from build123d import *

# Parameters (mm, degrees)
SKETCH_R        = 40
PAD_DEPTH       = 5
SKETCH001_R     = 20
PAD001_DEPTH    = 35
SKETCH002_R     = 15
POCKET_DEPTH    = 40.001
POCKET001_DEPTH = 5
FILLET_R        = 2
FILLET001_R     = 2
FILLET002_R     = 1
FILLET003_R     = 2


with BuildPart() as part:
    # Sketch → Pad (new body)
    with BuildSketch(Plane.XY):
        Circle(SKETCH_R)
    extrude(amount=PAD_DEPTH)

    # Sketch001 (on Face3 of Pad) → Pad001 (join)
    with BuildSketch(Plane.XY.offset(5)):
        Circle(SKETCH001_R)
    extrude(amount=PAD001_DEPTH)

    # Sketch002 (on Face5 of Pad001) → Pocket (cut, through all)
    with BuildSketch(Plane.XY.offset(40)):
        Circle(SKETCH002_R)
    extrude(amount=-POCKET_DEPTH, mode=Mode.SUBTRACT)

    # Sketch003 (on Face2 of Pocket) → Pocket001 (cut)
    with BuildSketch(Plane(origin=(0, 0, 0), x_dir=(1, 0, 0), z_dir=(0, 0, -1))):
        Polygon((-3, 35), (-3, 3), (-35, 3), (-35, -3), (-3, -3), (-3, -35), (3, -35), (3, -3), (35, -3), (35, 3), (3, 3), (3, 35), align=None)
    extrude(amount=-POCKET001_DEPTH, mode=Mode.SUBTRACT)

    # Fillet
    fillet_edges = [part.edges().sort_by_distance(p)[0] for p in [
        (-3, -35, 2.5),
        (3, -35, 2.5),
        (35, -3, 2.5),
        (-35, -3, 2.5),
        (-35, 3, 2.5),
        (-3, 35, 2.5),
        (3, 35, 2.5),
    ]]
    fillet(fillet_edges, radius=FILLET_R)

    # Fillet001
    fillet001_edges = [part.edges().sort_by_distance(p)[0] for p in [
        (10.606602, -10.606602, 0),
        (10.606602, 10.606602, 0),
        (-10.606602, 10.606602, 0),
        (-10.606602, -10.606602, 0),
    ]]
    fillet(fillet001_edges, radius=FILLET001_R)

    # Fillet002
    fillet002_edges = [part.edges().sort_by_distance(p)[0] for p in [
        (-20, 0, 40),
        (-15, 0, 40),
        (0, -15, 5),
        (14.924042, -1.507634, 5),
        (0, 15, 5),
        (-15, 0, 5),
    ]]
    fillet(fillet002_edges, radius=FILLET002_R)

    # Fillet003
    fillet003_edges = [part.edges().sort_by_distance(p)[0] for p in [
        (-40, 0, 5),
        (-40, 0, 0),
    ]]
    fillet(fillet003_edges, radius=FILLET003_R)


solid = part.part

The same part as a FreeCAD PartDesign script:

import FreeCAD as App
import Part
import Sketcher
from FreeCAD import Vector
Q = App.Units.Quantity


def edges_at(feature, points):
    """Names of the edges that pass closest to the given points."""
    edges = feature.Shape.Edges
    near = lambda p: min(range(len(edges)), key=lambda i: edges[i].distToShape(Part.Vertex(*p))[0])
    return sorted({f"Edge{near(p) + 1}" for p in points})


def add_polygon(sketch, points):
    """Adds a closed chain of lines whose ends are joined by coincident constraints."""
    first, n = sketch.GeometryCount, len(points)
    for a, b in zip(points, points[1:] + points[:1]):
        sketch.addGeometry(Part.LineSegment(App.Vector(*a, 0), App.Vector(*b, 0)), False)
    for i in range(n):
        sketch.addConstraint(Sketcher.Constraint("Coincident", first + i, 2, first + (i + 1) % n, 1))

doc = App.newDocument("Part")
body = doc.addObject("PartDesign::Body", "Body")

sketch1 = body.newObject("Sketcher::SketchObject", "Sketch")
sketch1.AttachmentSupport = (doc.getObject("XY_Plane"), [""])
sketch1.MapMode = "FlatFace"
sketch1.addGeometry(Part.Circle(Vector(0, 0, 0), Vector(0, 0, 1), 40), False)
sketch1.addConstraint([
    Sketcher.Constraint("Coincident", 0, 3, -1, 1),
    Sketcher.Constraint("Diameter", 0, Q("80 mm")),
])
pad1 = body.newObject("PartDesign::Pad", "Pad")
pad1.Profile = sketch1
pad1.Length = 5

sketch2 = body.newObject("Sketcher::SketchObject", "Sketch001")
sketch2.AttachmentSupport = (doc.getObject("XY_Plane"), [""])
sketch2.MapMode = "FlatFace"
sketch2.AttachmentOffset = App.Placement(Vector(0, 0, 5), App.Rotation())
sketch2.addGeometry(Part.Circle(Vector(0, 0, 0), Vector(0, 0, 1), 20), False)
sketch2.addConstraint([
    Sketcher.Constraint("Coincident", 0, 3, -1, 1),
    Sketcher.Constraint("Diameter", 0, Q("40 mm")),
])
pad2 = body.newObject("PartDesign::Pad", "Pad001")
pad2.Profile = sketch2
pad2.Length = 35

sketch3 = body.newObject("Sketcher::SketchObject", "Sketch002")
sketch3.AttachmentSupport = (doc.getObject("XY_Plane"), [""])
sketch3.MapMode = "FlatFace"
sketch3.AttachmentOffset = App.Placement(Vector(0, 0, 40), App.Rotation())
sketch3.addGeometry(Part.Circle(Vector(0, 0, 0), Vector(0, 0, 1), 15), False)
sketch3.addConstraint([
    Sketcher.Constraint("Coincident", 0, 3, -1, 1),
    Sketcher.Constraint("Diameter", 0, Q("30 mm")),
])
pocket1 = body.newObject("PartDesign::Pocket", "Pocket")
pocket1.Profile = sketch3
pocket1.Type = "ThroughAll"

sketch4 = body.newObject("Sketcher::SketchObject", "Sketch003")
sketch4.AttachmentSupport = (doc.getObject("XY_Plane"), [""])
sketch4.MapMode = "FlatFace"
add_polygon(sketch4, [(-3, -35), (-3, -3), (-35, -3), (-35, 3), (-3, 3), (-3, 35), (3, 35), (3, 3), (35, 3), (35, -3), (3, -3), (3, -35)])
sketch4.addConstraint([
    Sketcher.Constraint("Vertical", 0),
    Sketcher.Constraint("Horizontal", 1),
    Sketcher.Constraint("Vertical", 2),
    Sketcher.Constraint("Horizontal", 3),
    Sketcher.Constraint("Vertical", 4),
    Sketcher.Constraint("Horizontal", 5),
    Sketcher.Constraint("Vertical", 6),
    Sketcher.Constraint("Horizontal", 7),
    Sketcher.Constraint("Vertical", 8),
    Sketcher.Constraint("Horizontal", 9),
    Sketcher.Constraint("Vertical", 10),
    Sketcher.Constraint("Horizontal", 11),
    Sketcher.Constraint("Symmetric", 0, 2, 6, 2, -1, 1),
    Sketcher.Constraint("Symmetric", 2, 2, 8, 2, -1, 1),
    Sketcher.Constraint("Symmetric", 4, 2, 10, 2, -1, 1),
    Sketcher.Constraint("Symmetric", 3, 2, 6, 2, -2),
    Sketcher.Constraint("Equal", 9, 0),
    Sketcher.Constraint("Equal", 11, 2),
    Sketcher.Constraint("DistanceX", 1, 2, 1, 1, Q("32 mm")),
    Sketcher.Constraint("DistanceX", 5, 1, 5, 2, Q("6 mm")),
])
pocket2 = body.newObject("PartDesign::Pocket", "Pocket001")
pocket2.Profile = sketch4
pocket2.Length = 5
pocket2.Reversed = True
doc.recompute()

fillet = body.newObject("PartDesign::Fillet", "Fillet")
fillet.Base = (pocket2, edges_at(pocket2, [
    (-3, -35, 2.5),
    (3, -35, 2.5),
    (35, -3, 2.5),
    (-35, -3, 2.5),
    (-35, 3, 2.5),
    (-3, 35, 2.5),
    (3, 35, 2.5),
]))
fillet.Radius = 2
doc.recompute()

fillet2 = body.newObject("PartDesign::Fillet", "Fillet001")
fillet2.Base = (fillet, edges_at(fillet, [
    (10.607, -10.607, 0),
    (10.607, 10.607, 0),
    (-10.607, 10.607, 0),
    (-10.607, -10.607, 0),
]))
fillet2.Radius = 2
doc.recompute()

fillet3 = body.newObject("PartDesign::Fillet", "Fillet002")
fillet3.Base = (fillet2, edges_at(fillet2, [
    (-20, 0, 40),
    (-15, 0, 40),
    (0, -15, 5),
    (14.924, -1.508, 5),
    (0, 15, 5),
    (-15, 0, 5),
]))
fillet3.Radius = 1
doc.recompute()

fillet4 = body.newObject("PartDesign::Fillet", "Fillet003")
fillet4.Base = (fillet3, edges_at(fillet3, [(-40, 0, 5), (-40, 0, 0)]))
fillet4.Radius = 2

doc.recompute()
